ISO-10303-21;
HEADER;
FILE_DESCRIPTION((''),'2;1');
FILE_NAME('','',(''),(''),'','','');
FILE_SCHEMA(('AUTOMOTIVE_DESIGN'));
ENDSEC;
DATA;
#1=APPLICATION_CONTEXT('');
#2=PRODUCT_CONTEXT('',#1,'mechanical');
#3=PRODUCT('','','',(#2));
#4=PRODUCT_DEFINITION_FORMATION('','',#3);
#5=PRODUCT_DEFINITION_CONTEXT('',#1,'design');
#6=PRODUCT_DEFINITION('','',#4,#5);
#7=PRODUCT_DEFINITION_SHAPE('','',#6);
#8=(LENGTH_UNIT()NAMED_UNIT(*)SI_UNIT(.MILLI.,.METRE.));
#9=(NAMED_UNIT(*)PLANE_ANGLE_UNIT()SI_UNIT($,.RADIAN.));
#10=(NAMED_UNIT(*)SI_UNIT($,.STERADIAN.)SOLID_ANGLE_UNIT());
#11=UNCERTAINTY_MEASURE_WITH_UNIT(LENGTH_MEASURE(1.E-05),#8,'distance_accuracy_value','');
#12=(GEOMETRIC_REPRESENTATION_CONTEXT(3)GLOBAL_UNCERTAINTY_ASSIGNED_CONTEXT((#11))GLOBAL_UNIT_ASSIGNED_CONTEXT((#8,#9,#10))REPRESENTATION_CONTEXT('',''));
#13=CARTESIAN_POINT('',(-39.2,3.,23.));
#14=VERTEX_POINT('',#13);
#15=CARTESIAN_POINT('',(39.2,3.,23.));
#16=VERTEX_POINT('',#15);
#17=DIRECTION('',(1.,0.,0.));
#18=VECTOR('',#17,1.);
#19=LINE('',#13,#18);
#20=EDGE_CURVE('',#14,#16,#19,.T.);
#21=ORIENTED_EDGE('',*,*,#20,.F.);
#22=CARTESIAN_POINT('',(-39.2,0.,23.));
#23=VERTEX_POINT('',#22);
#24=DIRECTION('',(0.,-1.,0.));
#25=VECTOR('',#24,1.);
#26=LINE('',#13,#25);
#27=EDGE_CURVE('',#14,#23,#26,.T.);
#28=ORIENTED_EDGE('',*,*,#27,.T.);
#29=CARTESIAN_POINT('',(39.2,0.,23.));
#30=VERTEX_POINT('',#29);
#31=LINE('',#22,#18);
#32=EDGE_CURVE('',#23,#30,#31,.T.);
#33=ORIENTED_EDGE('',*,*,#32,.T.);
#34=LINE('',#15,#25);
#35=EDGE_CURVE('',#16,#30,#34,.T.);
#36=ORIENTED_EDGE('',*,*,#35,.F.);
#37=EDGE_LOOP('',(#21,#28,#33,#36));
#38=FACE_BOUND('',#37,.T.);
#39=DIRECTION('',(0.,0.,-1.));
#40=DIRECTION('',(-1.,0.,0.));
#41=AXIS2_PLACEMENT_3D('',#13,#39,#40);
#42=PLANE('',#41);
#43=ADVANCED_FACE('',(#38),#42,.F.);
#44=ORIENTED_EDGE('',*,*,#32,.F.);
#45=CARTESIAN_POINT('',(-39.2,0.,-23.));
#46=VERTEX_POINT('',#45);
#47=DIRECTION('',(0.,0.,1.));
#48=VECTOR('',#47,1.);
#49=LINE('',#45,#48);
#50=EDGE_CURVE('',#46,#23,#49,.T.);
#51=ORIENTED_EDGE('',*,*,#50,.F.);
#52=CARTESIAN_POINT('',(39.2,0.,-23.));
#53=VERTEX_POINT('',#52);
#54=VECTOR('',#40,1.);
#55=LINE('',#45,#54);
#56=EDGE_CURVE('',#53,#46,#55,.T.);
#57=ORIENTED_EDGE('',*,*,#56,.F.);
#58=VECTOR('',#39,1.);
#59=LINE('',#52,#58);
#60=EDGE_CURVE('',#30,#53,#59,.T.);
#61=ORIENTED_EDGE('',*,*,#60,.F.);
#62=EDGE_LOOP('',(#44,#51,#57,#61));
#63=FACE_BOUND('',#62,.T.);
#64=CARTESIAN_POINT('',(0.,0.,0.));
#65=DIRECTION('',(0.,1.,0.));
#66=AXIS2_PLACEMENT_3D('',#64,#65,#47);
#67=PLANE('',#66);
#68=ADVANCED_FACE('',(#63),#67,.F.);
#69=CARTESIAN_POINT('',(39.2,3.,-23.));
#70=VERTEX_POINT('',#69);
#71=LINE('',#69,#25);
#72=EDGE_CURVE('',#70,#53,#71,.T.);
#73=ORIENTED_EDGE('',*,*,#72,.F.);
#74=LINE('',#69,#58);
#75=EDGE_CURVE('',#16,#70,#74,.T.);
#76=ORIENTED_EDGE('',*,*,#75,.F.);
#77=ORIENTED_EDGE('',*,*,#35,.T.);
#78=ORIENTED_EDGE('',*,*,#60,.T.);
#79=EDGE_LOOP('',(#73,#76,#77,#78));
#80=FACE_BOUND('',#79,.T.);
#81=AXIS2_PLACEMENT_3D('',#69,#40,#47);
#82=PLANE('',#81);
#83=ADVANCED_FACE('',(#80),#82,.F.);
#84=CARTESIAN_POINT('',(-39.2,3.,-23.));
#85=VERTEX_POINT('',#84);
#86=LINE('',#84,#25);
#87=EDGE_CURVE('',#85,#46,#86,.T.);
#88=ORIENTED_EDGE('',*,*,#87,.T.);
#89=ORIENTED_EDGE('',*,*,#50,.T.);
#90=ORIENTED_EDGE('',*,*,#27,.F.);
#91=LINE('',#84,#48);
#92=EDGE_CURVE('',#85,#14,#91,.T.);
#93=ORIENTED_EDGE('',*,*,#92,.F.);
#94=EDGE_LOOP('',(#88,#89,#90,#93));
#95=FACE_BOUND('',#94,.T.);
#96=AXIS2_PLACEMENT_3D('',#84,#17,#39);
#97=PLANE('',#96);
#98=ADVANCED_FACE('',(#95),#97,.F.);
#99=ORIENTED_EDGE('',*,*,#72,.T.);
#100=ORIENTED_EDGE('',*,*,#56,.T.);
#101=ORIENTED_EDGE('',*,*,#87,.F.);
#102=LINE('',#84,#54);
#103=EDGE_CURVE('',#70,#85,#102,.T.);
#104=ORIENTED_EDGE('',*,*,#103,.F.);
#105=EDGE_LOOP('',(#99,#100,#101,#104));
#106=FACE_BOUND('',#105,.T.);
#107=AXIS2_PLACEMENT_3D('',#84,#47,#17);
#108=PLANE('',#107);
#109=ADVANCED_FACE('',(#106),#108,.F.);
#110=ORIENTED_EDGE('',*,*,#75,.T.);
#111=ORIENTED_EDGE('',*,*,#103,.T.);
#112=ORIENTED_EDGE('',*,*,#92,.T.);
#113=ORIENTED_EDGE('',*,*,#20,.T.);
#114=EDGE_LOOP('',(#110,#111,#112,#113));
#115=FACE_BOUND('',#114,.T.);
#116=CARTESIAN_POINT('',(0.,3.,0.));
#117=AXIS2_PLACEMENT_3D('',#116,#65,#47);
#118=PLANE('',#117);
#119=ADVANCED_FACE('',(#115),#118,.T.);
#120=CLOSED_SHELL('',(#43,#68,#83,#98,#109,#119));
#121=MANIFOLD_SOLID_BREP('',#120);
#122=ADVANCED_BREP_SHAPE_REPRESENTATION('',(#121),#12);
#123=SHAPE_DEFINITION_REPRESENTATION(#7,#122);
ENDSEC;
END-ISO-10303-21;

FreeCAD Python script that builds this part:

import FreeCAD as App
import Part
import Sketcher
from FreeCAD import Vector
Q = App.Units.Quantity

doc = App.newDocument("Part")
body = doc.addObject("PartDesign::Body", "Body")

# Sketch on XZ plane
sketch1 = body.newObject("Sketcher::SketchObject", "Sketch")
sketch1.AttachmentSupport = (doc.getObject("XZ_Plane"), [""])
sketch1.MapMode = "FlatFace"
sketch1.addGeometry(Part.LineSegment(Vector(-39.2, -23, 0), Vector(-39.2, 23, 0)), False)
sketch1.addGeometry(Part.LineSegment(Vector(-39.2, 23, 0), Vector(39.2, 23, 0)), False)
sketch1.addGeometry(Part.LineSegment(Vector(39.2, 23, 0), Vector(39.2, -23, 0)), False)
sketch1.addGeometry(Part.LineSegment(Vector(39.2, -23, 0), Vector(-39.2, -23, 0)), False)
sketch1.addConstraint(Sketcher.Constraint("Coincident", 0, 2, 1, 1))
sketch1.addConstraint(Sketcher.Constraint("Coincident", 1, 2, 2, 1))
sketch1.addConstraint(Sketcher.Constraint("Coincident", 2, 2, 3, 1))
sketch1.addConstraint(Sketcher.Constraint("Coincident", 3, 2, 0, 1))
sketch1.addConstraint(Sketcher.Constraint("Vertical", 0))
sketch1.addConstraint(Sketcher.Constraint("Horizontal", 1))
sketch1.addConstraint(Sketcher.Constraint("Vertical", 2))
sketch1.addConstraint(Sketcher.Constraint("Horizontal", 3))
sketch1.addConstraint(Sketcher.Constraint("Symmetric", 0, 2, 2, 2, -1, 1))
sketch1.addConstraint(Sketcher.Constraint("DistanceY", 0, 1, 0, 2, Q("46 mm")))
sketch1.addConstraint(Sketcher.Constraint("DistanceX", 1, 1, 1, 2, Q("78.4 mm")))
pad1 = body.newObject("PartDesign::Pad", "Pad")
pad1.Profile = sketch1
pad1.Length = 3
pad1.Reversed = True

doc.recompute()
